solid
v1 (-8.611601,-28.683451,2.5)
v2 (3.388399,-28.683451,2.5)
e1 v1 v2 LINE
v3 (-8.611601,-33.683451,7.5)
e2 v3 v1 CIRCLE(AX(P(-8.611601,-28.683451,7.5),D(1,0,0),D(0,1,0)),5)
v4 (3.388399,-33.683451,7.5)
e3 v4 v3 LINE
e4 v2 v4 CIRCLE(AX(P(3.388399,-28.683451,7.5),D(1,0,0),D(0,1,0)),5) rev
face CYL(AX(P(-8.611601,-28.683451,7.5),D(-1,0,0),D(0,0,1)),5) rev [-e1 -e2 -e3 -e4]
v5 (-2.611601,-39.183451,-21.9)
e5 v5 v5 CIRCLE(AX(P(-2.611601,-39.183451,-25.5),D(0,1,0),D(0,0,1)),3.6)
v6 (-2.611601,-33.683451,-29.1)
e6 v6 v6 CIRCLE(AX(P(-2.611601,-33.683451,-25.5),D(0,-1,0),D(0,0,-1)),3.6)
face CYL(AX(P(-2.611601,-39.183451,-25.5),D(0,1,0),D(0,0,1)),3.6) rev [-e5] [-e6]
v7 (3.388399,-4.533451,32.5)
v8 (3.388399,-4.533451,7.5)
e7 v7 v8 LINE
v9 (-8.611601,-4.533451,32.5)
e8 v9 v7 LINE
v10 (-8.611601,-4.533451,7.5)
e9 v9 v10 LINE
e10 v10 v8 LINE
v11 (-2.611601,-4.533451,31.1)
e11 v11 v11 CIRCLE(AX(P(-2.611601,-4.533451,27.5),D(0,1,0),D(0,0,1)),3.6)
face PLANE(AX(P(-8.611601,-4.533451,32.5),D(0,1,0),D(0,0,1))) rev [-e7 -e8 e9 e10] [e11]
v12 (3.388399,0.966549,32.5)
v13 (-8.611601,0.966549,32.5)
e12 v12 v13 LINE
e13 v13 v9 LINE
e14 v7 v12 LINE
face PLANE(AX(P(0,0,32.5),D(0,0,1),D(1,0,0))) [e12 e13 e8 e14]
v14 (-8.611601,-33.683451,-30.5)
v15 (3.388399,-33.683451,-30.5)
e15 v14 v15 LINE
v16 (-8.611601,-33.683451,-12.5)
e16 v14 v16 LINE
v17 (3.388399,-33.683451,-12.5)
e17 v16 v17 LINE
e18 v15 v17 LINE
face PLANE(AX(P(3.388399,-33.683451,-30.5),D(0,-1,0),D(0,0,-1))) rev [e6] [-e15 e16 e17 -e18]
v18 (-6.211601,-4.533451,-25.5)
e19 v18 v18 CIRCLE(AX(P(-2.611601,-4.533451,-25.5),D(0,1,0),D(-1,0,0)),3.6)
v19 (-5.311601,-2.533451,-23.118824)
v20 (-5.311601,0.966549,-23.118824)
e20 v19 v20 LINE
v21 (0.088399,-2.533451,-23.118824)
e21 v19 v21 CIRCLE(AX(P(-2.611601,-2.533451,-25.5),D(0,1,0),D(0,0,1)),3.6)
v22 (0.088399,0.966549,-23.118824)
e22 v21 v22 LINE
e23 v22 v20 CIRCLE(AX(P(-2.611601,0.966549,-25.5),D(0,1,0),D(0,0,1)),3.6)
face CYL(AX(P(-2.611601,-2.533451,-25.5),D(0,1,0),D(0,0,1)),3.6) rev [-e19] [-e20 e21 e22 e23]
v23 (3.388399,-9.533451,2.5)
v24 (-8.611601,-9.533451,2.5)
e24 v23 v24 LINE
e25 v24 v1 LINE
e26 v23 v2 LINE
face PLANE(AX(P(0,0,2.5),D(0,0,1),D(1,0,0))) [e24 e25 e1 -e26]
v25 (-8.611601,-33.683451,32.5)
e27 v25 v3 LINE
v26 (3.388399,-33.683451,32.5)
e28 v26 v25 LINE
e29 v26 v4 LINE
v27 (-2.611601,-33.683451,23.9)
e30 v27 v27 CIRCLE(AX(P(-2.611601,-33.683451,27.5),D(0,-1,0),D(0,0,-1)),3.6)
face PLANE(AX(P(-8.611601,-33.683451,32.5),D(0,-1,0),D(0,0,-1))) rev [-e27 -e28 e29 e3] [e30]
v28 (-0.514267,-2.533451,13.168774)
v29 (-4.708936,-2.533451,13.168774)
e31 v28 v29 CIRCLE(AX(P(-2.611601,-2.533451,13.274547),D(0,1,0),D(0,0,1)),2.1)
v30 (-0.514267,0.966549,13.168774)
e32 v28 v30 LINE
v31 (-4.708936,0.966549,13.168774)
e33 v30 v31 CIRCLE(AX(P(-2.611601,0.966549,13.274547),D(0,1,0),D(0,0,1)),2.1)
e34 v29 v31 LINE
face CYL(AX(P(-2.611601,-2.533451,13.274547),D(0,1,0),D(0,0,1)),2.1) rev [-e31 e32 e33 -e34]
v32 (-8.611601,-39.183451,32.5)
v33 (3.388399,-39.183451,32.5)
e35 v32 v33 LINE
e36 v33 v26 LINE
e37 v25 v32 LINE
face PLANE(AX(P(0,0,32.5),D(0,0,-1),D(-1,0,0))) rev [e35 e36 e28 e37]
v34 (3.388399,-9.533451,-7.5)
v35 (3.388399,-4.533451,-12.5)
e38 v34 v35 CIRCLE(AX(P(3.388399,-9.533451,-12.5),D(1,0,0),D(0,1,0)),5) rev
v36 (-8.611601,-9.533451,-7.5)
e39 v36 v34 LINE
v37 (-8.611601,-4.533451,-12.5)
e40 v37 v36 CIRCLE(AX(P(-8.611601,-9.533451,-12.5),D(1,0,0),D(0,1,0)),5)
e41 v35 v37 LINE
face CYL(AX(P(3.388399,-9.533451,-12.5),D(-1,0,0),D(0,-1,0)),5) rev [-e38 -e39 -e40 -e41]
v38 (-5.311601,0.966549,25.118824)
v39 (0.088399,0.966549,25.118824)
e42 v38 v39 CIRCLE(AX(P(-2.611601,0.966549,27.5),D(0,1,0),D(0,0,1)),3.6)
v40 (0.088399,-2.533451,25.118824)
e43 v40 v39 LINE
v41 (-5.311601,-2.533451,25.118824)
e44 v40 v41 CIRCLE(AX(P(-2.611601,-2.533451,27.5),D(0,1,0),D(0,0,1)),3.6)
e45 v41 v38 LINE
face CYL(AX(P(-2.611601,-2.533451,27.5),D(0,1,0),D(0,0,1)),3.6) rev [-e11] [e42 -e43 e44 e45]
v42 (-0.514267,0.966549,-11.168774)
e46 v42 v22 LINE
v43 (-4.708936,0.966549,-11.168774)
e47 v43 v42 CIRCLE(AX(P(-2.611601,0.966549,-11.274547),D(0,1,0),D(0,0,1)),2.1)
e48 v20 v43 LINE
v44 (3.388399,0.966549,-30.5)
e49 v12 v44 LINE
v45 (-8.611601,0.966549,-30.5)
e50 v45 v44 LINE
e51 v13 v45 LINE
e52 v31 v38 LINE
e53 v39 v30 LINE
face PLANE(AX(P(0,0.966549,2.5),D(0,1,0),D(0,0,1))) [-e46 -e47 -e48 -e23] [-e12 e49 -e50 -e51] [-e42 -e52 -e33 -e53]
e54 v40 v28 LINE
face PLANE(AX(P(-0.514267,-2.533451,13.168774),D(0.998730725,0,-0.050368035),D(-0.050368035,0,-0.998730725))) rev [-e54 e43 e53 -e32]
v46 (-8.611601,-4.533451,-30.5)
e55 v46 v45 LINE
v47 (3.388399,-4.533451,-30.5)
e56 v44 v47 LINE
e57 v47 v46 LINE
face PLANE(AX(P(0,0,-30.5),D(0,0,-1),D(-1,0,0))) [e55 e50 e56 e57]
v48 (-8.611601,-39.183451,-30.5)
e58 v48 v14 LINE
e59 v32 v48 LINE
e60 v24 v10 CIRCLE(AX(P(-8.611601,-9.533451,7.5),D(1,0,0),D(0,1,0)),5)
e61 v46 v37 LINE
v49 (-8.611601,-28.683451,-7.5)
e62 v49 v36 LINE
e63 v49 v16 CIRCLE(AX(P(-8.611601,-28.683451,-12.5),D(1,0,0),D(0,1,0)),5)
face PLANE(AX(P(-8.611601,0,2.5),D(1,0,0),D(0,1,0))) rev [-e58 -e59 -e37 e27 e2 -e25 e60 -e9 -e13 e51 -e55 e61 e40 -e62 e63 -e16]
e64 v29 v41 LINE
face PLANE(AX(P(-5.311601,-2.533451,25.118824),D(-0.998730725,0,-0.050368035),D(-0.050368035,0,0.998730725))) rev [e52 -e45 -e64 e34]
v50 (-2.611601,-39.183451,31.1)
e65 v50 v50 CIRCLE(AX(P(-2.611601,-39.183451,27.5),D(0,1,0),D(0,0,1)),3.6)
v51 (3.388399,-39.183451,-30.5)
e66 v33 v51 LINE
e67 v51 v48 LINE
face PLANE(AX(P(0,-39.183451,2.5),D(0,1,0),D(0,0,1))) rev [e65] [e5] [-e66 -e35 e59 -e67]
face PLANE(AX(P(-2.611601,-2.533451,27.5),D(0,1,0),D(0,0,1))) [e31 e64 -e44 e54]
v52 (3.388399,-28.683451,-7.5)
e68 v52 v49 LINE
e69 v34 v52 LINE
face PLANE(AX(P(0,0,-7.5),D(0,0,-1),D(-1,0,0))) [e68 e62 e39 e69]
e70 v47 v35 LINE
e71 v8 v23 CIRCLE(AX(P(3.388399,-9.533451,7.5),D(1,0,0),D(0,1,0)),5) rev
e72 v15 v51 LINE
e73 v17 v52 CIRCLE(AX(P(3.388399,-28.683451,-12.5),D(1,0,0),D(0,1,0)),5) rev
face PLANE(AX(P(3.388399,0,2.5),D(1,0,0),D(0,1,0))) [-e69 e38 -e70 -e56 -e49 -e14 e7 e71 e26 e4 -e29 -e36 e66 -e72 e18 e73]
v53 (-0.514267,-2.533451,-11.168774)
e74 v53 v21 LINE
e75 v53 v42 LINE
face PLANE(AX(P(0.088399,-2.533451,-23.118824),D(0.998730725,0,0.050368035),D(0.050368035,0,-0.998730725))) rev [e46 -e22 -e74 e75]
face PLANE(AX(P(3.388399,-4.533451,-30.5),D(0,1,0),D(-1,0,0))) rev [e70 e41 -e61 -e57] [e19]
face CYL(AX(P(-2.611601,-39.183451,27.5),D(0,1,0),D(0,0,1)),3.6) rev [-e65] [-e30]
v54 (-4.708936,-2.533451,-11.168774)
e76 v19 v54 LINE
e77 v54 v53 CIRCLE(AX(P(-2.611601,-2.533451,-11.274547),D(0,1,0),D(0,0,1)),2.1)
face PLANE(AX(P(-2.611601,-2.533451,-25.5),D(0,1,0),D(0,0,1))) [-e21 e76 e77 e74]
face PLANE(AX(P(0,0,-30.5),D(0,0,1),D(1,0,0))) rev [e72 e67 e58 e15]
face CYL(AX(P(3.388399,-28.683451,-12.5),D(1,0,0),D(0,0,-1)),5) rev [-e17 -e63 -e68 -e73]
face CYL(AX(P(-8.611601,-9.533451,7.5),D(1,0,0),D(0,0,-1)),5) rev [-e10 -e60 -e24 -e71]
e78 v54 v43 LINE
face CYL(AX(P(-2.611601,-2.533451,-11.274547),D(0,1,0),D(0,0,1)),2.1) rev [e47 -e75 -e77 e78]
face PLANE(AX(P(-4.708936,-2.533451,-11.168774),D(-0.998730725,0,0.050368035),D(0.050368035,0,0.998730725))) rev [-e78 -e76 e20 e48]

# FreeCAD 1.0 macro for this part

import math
import FreeCAD as App
import Part
import Sketcher


def edges_at(feature, points):
    """Names of the edges that pass closest to the given points."""
    edges = feature.Shape.Edges
    near = lambda p: min(range(len(edges)), key=lambda i: edges[i].distToShape(Part.Vertex(*p))[0])
    return sorted({f"Edge{near(p) + 1}" for p in points})

doc = App.newDocument("Part")
body = doc.addObject("PartDesign::Body", "Body")

# Sketch on XY plane
sketch1 = doc.addObject("Sketcher::SketchObject", "Sketch")
body.addObject(sketch1)
sketch1.AttachmentSupport = (doc.XY_Plane, [""])
sketch1.MapMode = "FlatFace"
sketch1.addGeometry([
    Part.LineSegment(App.Vector(-9, 1, 0), App.Vector(-9, -39, 0)),
    Part.LineSegment(App.Vector(-9, -39, 0), App.Vector(3, -39, 0)),
    Part.LineSegment(App.Vector(3, -39, 0), App.Vector(3, 1, 0)),
    Part.LineSegment(App.Vector(3, 1, 0), App.Vector(-9, 1, 0)),
], False)
sketch1.addConstraint([
    Sketcher.Constraint("Coincident", 0, 2, 1, 1),
    Sketcher.Constraint("Coincident", 1, 2, 2, 1),
    Sketcher.Constraint("Coincident", 2, 2, 3, 1),
    Sketcher.Constraint("Coincident", 3, 2, 0, 1),
    Sketcher.Constraint("Vertical", 0),
    Sketcher.Constraint("Horizontal", 1),
    Sketcher.Constraint("Vertical", 2),
    Sketcher.Constraint("Horizontal", 3),
    Sketcher.Constraint("DistanceX", 1, 1, 1, 2, 12.0),
    Sketcher.Constraint("DistanceY", 0, 2, 0, 1, 40.15),
    Sketcher.Constraint("DistanceX", 0, 2, -1, 1, 8.611601),
    Sketcher.Constraint("DistanceY", 0, 2, -1, 1, 39.183451),
])
pad1 = doc.addObject("PartDesign::Pad", "Pad")
body.addObject(pad1)
pad1.Profile = sketch1
pad1.Length = 2.5

# Sketch on XY plane
sketch2 = doc.addObject("Sketcher::SketchObject", "Sketch001")
body.addObject(sketch2)
sketch2.AttachmentSupport = (doc.XY_Plane, [""])
sketch2.MapMode = "FlatFace"
sketch2.AttachmentOffset = App.Placement(App.Vector(0, 0, 2.5), App.Rotation())
sketch2.addGeometry([
    Part.LineSegment(App.Vector(-9, 1, 0), App.Vector(-9, -5, 0)),  # 0
    Part.LineSegment(App.Vector(-9, -5, 0), App.Vector(3, -5, 0)),  # 1
    Part.LineSegment(App.Vector(3, -5, 0), App.Vector(3, 1, 0)),  # 2
    Part.LineSegment(App.Vector(3, 1, 0), App.Vector(-9, 1, 0)),  # 3
    Part.LineSegment(App.Vector(-9, -34, 0), App.Vector(-9, -39, 0)),  # 4
    Part.LineSegment(App.Vector(-9, -39, 0), App.Vector(3, -39, 0)),  # 5
    Part.LineSegment(App.Vector(3, -39, 0), App.Vector(3, -34, 0)),  # 6
    Part.LineSegment(App.Vector(3, -34, 0), App.Vector(-9, -34, 0)),  # 7
], False)
sketch2.addConstraint([
    Sketcher.Constraint("Coincident", 0, 2, 1, 1),
    Sketcher.Constraint("Coincident", 1, 2, 2, 1),
    Sketcher.Constraint("Coincident", 2, 2, 3, 1),
    Sketcher.Constraint("Coincident", 3, 2, 0, 1),
    Sketcher.Constraint("Coincident", 4, 2, 5, 1),
    Sketcher.Constraint("Coincident", 5, 2, 6, 1),
    Sketcher.Constraint("Coincident", 6, 2, 7, 1),
    Sketcher.Constraint("Coincident", 7, 2, 4, 1),
    Sketcher.Constraint("Vertical", 0),
    Sketcher.Constraint("Horizontal", 1),
    Sketcher.Constraint("Vertical", 2),
    Sketcher.Constraint("Horizontal", 3),
    Sketcher.Constraint("Vertical", 4),
    Sketcher.Constraint("Horizontal", 5),
    Sketcher.Constraint("Vertical", 6),
    Sketcher.Constraint("Horizontal", 7),
    Sketcher.Constraint("Vertical", 3, 2, 4, 2),
    Sketcher.Constraint("Vertical", 2, 2, 5, 2),
    Sketcher.Constraint("Equal", 2, 4),
    Sketcher.Constraint("DistanceX", 1, 1, 1, 2, 12.0),
    Sketcher.Constraint("DistanceY", 0, 2, 0, 1, 5.5),
    Sketcher.Constraint("DistanceY", 4, 2, 0, 2, 34.65),
    Sketcher.Constraint("DistanceX", 0, 2, -1, 1, 8.611601),
    Sketcher.Constraint("DistanceY", 0, 2, -1, 1, 4.533451),
])
pad2 = doc.addObject("PartDesign::Pad", "Pad001")
body.addObject(pad2)
pad2.Profile = sketch2
pad2.Length = 30

# Sketch on XZ plane
sketch3 = doc.addObject("Sketcher::SketchObject", "Sketch002")
body.addObject(sketch3)
sketch3.AttachmentSupport = (doc.XZ_Plane, [""])
sketch3.MapMode = "FlatFace"
sketch3.AttachmentOffset = App.Placement(App.Vector(0, 0, -0.966549), App.Rotation())
sketch3.addGeometry([
    Part.LineSegment(App.Vector(0.1, 25.1, 0), App.Vector(-0.5, 13.2, 0)),
    Part.ArcOfCircle(Part.Circle(App.Vector(-2.6, 13.3, 0), App.Vector(0, 0, 1), 2.1), math.radians(-177), math.radians(-3)),
    Part.LineSegment(App.Vector(-4.7, 13.2, 0), App.Vector(-5.3, 25.1, 0)),
    Part.ArcOfCircle(Part.Circle(App.Vector(-2.6, 27.5, 0), App.Vector(0, 0, 1), 3.6), math.radians(-41), math.radians(221)),
], False)
sketch3.addConstraint([
    Sketcher.Constraint("Tangent", 0, 2, 1, 2),
    Sketcher.Constraint("Tangent", 1, 1, 2, 1),
    Sketcher.Constraint("Coincident", 2, 2, 3, 2),
    Sketcher.Constraint("Coincident", 3, 1, 0, 1),
    Sketcher.Constraint("Horizontal", 0, 2, 1, 1),
    Sketcher.Constraint("Horizontal", 2, 2, 3, 1),
    Sketcher.Constraint("Radius", 1, 2.1),
    Sketcher.Constraint("Radius", 3, 3.6),
    Sketcher.Constraint("DistanceY", -1, 1, 3, 3, 27.5),
    Sketcher.Constraint("DistanceX", 2, 2, 3, 3, 2.7),
    Sketcher.Constraint("DistanceX", 1, 3, -1, 1, 2.611601),
    Sketcher.Constraint("DistanceY", 1, 1, 2, 2, 11.95005),
])
pocket1 = doc.addObject("PartDesign::Pocket", "Pocket")
body.addObject(pocket1)
pocket1.Profile = sketch3
pocket1.Length = 3.5
pocket1.Reversed = True

# Sketch on XY plane
sketch4 = doc.addObject("Sketcher::SketchObject", "Sketch003")
body.addObject(sketch4)
sketch4.AttachmentSupport = (doc.XY_Plane, [""])
sketch4.MapMode = "FlatFace"
sketch4.addGeometry([
    Part.LineSegment(App.Vector(3, 1, 0), App.Vector(3, -39, 0)),
    Part.LineSegment(App.Vector(3, -39, 0), App.Vector(-9, -39, 0)),
    Part.LineSegment(App.Vector(-9, -39, 0), App.Vector(-9, 1, 0)),
    Part.LineSegment(App.Vector(-9, 1, 0), App.Vector(3, 1, 0)),
], False)
sketch4.addConstraint([
    Sketcher.Constraint("Coincident", 0, 2, 1, 1),
    Sketcher.Constraint("Coincident", 1, 2, 2, 1),
    Sketcher.Constraint("Coincident", 2, 2, 3, 1),
    Sketcher.Constraint("Coincident", 3, 2, 0, 1),
    Sketcher.Constraint("Vertical", 0),
    Sketcher.Constraint("Horizontal", 1),
    Sketcher.Constraint("Vertical", 2),
    Sketcher.Constraint("Horizontal", 3),
    Sketcher.Constraint("DistanceX", 1, 2, 1, 1, 12.0),
    Sketcher.Constraint("DistanceY", 0, 2, 0, 1, 40.15),
    Sketcher.Constraint("DistanceX", -1, 1, 0, 2, 3.388399),
    Sketcher.Constraint("DistanceY", 0, 2, -1, 1, 39.183451),
])
pad3 = doc.addObject("PartDesign::Pad", "Pad002")
body.addObject(pad3)
pad3.Profile = sketch4
pad3.Length = 7.5
pad3.Reversed = True

# Sketch on XY plane
sketch5 = doc.addObject("Sketcher::SketchObject", "Sketch004")
body.addObject(sketch5)
sketch5.AttachmentSupport = (doc.XY_Plane, [""])
sketch5.MapMode = "FlatFace"
sketch5.AttachmentOffset = App.Placement(App.Vector(0, 0, -7.5), App.Rotation())
sketch5.addGeometry([
    Part.LineSegment(App.Vector(3, 1, 0), App.Vector(3, -5, 0)),  # 0
    Part.LineSegment(App.Vector(3, -5, 0), App.Vector(-9, -5, 0)),  # 1
    Part.LineSegment(App.Vector(-9, -5, 0), App.Vector(-9, 1, 0)),  # 2
    Part.LineSegment(App.Vector(-9, 1, 0), App.Vector(3, 1, 0)),  # 3
    Part.LineSegment(App.Vector(3, -34, 0), App.Vector(3, -39, 0)),  # 4
    Part.LineSegment(App.Vector(3, -39, 0), App.Vector(-9, -39, 0)),  # 5
    Part.LineSegment(App.Vector(-9, -39, 0), App.Vector(-9, -34, 0)),  # 6
    Part.LineSegment(App.Vector(-9, -34, 0), App.Vector(3, -34, 0)),  # 7
], False)
sketch5.addConstraint([
    Sketcher.Constraint("Coincident", 0, 2, 1, 1),
    Sketcher.Constraint("Coincident", 1, 2, 2, 1),
    Sketcher.Constraint("Coincident", 2, 2, 3, 1),
    Sketcher.Constraint("Coincident", 3, 2, 0, 1),
    Sketcher.Constraint("Coincident", 4, 2, 5, 1),
    Sketcher.Constraint("Coincident", 5, 2, 6, 1),
    Sketcher.Constraint("Coincident", 6, 2, 7, 1),
    Sketcher.Constraint("Coincident", 7, 2, 4, 1),
    Sketcher.Constraint("Vertical", 0),
    Sketcher.Constraint("Horizontal", 1),
    Sketcher.Constraint("Vertical", 2),
    Sketcher.Constraint("Horizontal", 3),
    Sketcher.Constraint("Vertical", 4),
    Sketcher.Constraint("Horizontal", 5),
    Sketcher.Constraint("Vertical", 6),
    Sketcher.Constraint("Horizontal", 7),
    Sketcher.Constraint("Vertical", 3, 2, 4, 2),
    Sketcher.Constraint("Vertical", 2, 2, 5, 2),
    Sketcher.Constraint("Equal", 2, 4),
    Sketcher.Constraint("DistanceX", 1, 2, 1, 1, 12.0),
    Sketcher.Constraint("DistanceY", 0, 2, 0, 1, 5.5),
    Sketcher.Constraint("DistanceY", 4, 2, 0, 2, 34.65),
    Sketcher.Constraint("DistanceX", -1, 1, 0, 2, 3.388399),
    Sketcher.Constraint("DistanceY", 0, 2, -1, 1, 4.533451),
])
pad4 = doc.addObject("PartDesign::Pad", "Pad003")
body.addObject(pad4)
pad4.Profile = sketch5
pad4.Length = 23
pad4.Reversed = True

# Sketch on XZ plane
sketch6 = doc.addObject("Sketcher::SketchObject", "Sketch005")
body.addObject(sketch6)
sketch6.AttachmentSupport = (doc.XZ_Plane, [""])
sketch6.MapMode = "FlatFace"
sketch6.AttachmentOffset = App.Placement(App.Vector(0, 0, -0.966549), App.Rotation())
sketch6.addGeometry([
    Part.LineSegment(App.Vector(-5.3, -23.1, 0), App.Vector(-4.7, -11.2, 0)),
    Part.ArcOfCircle(Part.Circle(App.Vector(-2.6, -11.3, 0), App.Vector(0, 0, 1), 2.1), math.radians(3), math.radians(177)),
    Part.LineSegment(App.Vector(-0.5, -11.2, 0), App.Vector(0.1, -23.1, 0)),
    Part.ArcOfCircle(Part.Circle(App.Vector(-2.6, -25.5, 0), App.Vector(0, 0, 1), 3.6), math.radians(139), math.radians(401)),
], False)
sketch6.addConstraint([
    Sketcher.Constraint("Tangent", 0, 2, 1, 2),
    Sketcher.Constraint("Tangent", 1, 1, 2, 1),
    Sketcher.Constraint("Coincident", 2, 2, 3, 2),
    Sketcher.Constraint("Coincident", 3, 1, 0, 1),
    Sketcher.Constraint("Horizontal", 0, 2, 1, 1),
    Sketcher.Constraint("Horizontal", 2, 2, 3, 1),
    Sketcher.Constraint("Radius", 1, 2.1),
    Sketcher.Constraint("Radius", 3, 3.6),
    Sketcher.Constraint("DistanceY", 3, 3, -1, 1, 25.5),
    Sketcher.Constraint("DistanceX", 3, 3, 2, 2, 2.7),
    Sketcher.Constraint("DistanceX", 1, 3, -1, 1, 2.611601),
    Sketcher.Constraint("DistanceY", 2, 2, 1, 1, 11.95005),
])
pocket2 = doc.addObject("PartDesign::Pocket", "Pocket001")
body.addObject(pocket2)
pocket2.Profile = sketch6
pocket2.Length = 3.5
pocket2.Reversed = True

# Sketch on XZ plane
sketch7 = doc.addObject("Sketcher::SketchObject", "Sketch006")
body.addObject(sketch7)
sketch7.AttachmentSupport = (doc.XZ_Plane, [""])
sketch7.MapMode = "FlatFace"
sketch7.AttachmentOffset = App.Placement(App.Vector(0, 0, -0.966549), App.Rotation())
sketch7.addGeometry(Part.Circle(App.Vector(-2.6, 27.5, 0), App.Vector(0, 0, 1), 3.6), False)
sketch7.addConstraint([
    Sketcher.Constraint("Diameter", 0, 7.2),
    Sketcher.Constraint("DistanceY", -1, 1, 0, 3, 27.5),
    Sketcher.Constraint("DistanceX", 0, 3, -1, 1, 2.611601),
])
pocket3 = doc.addObject("PartDesign::Pocket", "Pocket002")
body.addObject(pocket3)
pocket3.Profile = sketch7
pocket3.Type = "ThroughAll"
pocket3.Reversed = True

# Sketch on XZ plane
sketch8 = doc.addObject("Sketcher::SketchObject", "Sketch007")
body.addObject(sketch8)
sketch8.AttachmentSupport = (doc.XZ_Plane, [""])
sketch8.MapMode = "FlatFace"
sketch8.AttachmentOffset = App.Placement(App.Vector(0, 0, -0.966549), App.Rotation())
sketch8.addGeometry(Part.Circle(App.Vector(-2.6, -25.5, 0), App.Vector(0, 0, 1), 3.6), False)
sketch8.addConstraint([
    Sketcher.Constraint("Diameter", 0, 7.2),
    Sketcher.Constraint("DistanceY", 0, 3, -1, 1, 25.5),
    Sketcher.Constraint("DistanceX", 0, 3, -1, 1, 2.611601),
])
pocket4 = doc.addObject("PartDesign::Pocket", "Pocket003")
body.addObject(pocket4)
pocket4.Profile = sketch8
pocket4.Type = "ThroughAll"
pocket4.Reversed = True
doc.recompute()

fillet = doc.addObject("PartDesign::Fillet", "Fillet")
body.addObject(fillet)
fillet.Base = (pocket4, edges_at(pocket4, [(-2.612, -4.533, 2.5)]))
fillet.Radius = 5
doc.recompute()

fillet2 = doc.addObject("PartDesign::Fillet", "Fillet001")
body.addObject(fillet2)
fillet2.Base = (fillet, edges_at(fillet, [(-2.612, -33.683, 2.5)]))
fillet2.Radius = 5
doc.recompute()

fillet3 = doc.addObject("PartDesign::Fillet", "Fillet002")
body.addObject(fillet3)
fillet3.Base = (fillet2, edges_at(fillet2, [(-2.612, -4.533, -7.5)]))
fillet3.Radius = 5
doc.recompute()

fillet4 = doc.addObject("PartDesign::Fillet", "Fillet003")
body.addObject(fillet4)
fillet4.Base = (fillet3, edges_at(fillet3, [(-2.612, -33.683, -7.5)]))
fillet4.Radius = 5

doc.recompute()
